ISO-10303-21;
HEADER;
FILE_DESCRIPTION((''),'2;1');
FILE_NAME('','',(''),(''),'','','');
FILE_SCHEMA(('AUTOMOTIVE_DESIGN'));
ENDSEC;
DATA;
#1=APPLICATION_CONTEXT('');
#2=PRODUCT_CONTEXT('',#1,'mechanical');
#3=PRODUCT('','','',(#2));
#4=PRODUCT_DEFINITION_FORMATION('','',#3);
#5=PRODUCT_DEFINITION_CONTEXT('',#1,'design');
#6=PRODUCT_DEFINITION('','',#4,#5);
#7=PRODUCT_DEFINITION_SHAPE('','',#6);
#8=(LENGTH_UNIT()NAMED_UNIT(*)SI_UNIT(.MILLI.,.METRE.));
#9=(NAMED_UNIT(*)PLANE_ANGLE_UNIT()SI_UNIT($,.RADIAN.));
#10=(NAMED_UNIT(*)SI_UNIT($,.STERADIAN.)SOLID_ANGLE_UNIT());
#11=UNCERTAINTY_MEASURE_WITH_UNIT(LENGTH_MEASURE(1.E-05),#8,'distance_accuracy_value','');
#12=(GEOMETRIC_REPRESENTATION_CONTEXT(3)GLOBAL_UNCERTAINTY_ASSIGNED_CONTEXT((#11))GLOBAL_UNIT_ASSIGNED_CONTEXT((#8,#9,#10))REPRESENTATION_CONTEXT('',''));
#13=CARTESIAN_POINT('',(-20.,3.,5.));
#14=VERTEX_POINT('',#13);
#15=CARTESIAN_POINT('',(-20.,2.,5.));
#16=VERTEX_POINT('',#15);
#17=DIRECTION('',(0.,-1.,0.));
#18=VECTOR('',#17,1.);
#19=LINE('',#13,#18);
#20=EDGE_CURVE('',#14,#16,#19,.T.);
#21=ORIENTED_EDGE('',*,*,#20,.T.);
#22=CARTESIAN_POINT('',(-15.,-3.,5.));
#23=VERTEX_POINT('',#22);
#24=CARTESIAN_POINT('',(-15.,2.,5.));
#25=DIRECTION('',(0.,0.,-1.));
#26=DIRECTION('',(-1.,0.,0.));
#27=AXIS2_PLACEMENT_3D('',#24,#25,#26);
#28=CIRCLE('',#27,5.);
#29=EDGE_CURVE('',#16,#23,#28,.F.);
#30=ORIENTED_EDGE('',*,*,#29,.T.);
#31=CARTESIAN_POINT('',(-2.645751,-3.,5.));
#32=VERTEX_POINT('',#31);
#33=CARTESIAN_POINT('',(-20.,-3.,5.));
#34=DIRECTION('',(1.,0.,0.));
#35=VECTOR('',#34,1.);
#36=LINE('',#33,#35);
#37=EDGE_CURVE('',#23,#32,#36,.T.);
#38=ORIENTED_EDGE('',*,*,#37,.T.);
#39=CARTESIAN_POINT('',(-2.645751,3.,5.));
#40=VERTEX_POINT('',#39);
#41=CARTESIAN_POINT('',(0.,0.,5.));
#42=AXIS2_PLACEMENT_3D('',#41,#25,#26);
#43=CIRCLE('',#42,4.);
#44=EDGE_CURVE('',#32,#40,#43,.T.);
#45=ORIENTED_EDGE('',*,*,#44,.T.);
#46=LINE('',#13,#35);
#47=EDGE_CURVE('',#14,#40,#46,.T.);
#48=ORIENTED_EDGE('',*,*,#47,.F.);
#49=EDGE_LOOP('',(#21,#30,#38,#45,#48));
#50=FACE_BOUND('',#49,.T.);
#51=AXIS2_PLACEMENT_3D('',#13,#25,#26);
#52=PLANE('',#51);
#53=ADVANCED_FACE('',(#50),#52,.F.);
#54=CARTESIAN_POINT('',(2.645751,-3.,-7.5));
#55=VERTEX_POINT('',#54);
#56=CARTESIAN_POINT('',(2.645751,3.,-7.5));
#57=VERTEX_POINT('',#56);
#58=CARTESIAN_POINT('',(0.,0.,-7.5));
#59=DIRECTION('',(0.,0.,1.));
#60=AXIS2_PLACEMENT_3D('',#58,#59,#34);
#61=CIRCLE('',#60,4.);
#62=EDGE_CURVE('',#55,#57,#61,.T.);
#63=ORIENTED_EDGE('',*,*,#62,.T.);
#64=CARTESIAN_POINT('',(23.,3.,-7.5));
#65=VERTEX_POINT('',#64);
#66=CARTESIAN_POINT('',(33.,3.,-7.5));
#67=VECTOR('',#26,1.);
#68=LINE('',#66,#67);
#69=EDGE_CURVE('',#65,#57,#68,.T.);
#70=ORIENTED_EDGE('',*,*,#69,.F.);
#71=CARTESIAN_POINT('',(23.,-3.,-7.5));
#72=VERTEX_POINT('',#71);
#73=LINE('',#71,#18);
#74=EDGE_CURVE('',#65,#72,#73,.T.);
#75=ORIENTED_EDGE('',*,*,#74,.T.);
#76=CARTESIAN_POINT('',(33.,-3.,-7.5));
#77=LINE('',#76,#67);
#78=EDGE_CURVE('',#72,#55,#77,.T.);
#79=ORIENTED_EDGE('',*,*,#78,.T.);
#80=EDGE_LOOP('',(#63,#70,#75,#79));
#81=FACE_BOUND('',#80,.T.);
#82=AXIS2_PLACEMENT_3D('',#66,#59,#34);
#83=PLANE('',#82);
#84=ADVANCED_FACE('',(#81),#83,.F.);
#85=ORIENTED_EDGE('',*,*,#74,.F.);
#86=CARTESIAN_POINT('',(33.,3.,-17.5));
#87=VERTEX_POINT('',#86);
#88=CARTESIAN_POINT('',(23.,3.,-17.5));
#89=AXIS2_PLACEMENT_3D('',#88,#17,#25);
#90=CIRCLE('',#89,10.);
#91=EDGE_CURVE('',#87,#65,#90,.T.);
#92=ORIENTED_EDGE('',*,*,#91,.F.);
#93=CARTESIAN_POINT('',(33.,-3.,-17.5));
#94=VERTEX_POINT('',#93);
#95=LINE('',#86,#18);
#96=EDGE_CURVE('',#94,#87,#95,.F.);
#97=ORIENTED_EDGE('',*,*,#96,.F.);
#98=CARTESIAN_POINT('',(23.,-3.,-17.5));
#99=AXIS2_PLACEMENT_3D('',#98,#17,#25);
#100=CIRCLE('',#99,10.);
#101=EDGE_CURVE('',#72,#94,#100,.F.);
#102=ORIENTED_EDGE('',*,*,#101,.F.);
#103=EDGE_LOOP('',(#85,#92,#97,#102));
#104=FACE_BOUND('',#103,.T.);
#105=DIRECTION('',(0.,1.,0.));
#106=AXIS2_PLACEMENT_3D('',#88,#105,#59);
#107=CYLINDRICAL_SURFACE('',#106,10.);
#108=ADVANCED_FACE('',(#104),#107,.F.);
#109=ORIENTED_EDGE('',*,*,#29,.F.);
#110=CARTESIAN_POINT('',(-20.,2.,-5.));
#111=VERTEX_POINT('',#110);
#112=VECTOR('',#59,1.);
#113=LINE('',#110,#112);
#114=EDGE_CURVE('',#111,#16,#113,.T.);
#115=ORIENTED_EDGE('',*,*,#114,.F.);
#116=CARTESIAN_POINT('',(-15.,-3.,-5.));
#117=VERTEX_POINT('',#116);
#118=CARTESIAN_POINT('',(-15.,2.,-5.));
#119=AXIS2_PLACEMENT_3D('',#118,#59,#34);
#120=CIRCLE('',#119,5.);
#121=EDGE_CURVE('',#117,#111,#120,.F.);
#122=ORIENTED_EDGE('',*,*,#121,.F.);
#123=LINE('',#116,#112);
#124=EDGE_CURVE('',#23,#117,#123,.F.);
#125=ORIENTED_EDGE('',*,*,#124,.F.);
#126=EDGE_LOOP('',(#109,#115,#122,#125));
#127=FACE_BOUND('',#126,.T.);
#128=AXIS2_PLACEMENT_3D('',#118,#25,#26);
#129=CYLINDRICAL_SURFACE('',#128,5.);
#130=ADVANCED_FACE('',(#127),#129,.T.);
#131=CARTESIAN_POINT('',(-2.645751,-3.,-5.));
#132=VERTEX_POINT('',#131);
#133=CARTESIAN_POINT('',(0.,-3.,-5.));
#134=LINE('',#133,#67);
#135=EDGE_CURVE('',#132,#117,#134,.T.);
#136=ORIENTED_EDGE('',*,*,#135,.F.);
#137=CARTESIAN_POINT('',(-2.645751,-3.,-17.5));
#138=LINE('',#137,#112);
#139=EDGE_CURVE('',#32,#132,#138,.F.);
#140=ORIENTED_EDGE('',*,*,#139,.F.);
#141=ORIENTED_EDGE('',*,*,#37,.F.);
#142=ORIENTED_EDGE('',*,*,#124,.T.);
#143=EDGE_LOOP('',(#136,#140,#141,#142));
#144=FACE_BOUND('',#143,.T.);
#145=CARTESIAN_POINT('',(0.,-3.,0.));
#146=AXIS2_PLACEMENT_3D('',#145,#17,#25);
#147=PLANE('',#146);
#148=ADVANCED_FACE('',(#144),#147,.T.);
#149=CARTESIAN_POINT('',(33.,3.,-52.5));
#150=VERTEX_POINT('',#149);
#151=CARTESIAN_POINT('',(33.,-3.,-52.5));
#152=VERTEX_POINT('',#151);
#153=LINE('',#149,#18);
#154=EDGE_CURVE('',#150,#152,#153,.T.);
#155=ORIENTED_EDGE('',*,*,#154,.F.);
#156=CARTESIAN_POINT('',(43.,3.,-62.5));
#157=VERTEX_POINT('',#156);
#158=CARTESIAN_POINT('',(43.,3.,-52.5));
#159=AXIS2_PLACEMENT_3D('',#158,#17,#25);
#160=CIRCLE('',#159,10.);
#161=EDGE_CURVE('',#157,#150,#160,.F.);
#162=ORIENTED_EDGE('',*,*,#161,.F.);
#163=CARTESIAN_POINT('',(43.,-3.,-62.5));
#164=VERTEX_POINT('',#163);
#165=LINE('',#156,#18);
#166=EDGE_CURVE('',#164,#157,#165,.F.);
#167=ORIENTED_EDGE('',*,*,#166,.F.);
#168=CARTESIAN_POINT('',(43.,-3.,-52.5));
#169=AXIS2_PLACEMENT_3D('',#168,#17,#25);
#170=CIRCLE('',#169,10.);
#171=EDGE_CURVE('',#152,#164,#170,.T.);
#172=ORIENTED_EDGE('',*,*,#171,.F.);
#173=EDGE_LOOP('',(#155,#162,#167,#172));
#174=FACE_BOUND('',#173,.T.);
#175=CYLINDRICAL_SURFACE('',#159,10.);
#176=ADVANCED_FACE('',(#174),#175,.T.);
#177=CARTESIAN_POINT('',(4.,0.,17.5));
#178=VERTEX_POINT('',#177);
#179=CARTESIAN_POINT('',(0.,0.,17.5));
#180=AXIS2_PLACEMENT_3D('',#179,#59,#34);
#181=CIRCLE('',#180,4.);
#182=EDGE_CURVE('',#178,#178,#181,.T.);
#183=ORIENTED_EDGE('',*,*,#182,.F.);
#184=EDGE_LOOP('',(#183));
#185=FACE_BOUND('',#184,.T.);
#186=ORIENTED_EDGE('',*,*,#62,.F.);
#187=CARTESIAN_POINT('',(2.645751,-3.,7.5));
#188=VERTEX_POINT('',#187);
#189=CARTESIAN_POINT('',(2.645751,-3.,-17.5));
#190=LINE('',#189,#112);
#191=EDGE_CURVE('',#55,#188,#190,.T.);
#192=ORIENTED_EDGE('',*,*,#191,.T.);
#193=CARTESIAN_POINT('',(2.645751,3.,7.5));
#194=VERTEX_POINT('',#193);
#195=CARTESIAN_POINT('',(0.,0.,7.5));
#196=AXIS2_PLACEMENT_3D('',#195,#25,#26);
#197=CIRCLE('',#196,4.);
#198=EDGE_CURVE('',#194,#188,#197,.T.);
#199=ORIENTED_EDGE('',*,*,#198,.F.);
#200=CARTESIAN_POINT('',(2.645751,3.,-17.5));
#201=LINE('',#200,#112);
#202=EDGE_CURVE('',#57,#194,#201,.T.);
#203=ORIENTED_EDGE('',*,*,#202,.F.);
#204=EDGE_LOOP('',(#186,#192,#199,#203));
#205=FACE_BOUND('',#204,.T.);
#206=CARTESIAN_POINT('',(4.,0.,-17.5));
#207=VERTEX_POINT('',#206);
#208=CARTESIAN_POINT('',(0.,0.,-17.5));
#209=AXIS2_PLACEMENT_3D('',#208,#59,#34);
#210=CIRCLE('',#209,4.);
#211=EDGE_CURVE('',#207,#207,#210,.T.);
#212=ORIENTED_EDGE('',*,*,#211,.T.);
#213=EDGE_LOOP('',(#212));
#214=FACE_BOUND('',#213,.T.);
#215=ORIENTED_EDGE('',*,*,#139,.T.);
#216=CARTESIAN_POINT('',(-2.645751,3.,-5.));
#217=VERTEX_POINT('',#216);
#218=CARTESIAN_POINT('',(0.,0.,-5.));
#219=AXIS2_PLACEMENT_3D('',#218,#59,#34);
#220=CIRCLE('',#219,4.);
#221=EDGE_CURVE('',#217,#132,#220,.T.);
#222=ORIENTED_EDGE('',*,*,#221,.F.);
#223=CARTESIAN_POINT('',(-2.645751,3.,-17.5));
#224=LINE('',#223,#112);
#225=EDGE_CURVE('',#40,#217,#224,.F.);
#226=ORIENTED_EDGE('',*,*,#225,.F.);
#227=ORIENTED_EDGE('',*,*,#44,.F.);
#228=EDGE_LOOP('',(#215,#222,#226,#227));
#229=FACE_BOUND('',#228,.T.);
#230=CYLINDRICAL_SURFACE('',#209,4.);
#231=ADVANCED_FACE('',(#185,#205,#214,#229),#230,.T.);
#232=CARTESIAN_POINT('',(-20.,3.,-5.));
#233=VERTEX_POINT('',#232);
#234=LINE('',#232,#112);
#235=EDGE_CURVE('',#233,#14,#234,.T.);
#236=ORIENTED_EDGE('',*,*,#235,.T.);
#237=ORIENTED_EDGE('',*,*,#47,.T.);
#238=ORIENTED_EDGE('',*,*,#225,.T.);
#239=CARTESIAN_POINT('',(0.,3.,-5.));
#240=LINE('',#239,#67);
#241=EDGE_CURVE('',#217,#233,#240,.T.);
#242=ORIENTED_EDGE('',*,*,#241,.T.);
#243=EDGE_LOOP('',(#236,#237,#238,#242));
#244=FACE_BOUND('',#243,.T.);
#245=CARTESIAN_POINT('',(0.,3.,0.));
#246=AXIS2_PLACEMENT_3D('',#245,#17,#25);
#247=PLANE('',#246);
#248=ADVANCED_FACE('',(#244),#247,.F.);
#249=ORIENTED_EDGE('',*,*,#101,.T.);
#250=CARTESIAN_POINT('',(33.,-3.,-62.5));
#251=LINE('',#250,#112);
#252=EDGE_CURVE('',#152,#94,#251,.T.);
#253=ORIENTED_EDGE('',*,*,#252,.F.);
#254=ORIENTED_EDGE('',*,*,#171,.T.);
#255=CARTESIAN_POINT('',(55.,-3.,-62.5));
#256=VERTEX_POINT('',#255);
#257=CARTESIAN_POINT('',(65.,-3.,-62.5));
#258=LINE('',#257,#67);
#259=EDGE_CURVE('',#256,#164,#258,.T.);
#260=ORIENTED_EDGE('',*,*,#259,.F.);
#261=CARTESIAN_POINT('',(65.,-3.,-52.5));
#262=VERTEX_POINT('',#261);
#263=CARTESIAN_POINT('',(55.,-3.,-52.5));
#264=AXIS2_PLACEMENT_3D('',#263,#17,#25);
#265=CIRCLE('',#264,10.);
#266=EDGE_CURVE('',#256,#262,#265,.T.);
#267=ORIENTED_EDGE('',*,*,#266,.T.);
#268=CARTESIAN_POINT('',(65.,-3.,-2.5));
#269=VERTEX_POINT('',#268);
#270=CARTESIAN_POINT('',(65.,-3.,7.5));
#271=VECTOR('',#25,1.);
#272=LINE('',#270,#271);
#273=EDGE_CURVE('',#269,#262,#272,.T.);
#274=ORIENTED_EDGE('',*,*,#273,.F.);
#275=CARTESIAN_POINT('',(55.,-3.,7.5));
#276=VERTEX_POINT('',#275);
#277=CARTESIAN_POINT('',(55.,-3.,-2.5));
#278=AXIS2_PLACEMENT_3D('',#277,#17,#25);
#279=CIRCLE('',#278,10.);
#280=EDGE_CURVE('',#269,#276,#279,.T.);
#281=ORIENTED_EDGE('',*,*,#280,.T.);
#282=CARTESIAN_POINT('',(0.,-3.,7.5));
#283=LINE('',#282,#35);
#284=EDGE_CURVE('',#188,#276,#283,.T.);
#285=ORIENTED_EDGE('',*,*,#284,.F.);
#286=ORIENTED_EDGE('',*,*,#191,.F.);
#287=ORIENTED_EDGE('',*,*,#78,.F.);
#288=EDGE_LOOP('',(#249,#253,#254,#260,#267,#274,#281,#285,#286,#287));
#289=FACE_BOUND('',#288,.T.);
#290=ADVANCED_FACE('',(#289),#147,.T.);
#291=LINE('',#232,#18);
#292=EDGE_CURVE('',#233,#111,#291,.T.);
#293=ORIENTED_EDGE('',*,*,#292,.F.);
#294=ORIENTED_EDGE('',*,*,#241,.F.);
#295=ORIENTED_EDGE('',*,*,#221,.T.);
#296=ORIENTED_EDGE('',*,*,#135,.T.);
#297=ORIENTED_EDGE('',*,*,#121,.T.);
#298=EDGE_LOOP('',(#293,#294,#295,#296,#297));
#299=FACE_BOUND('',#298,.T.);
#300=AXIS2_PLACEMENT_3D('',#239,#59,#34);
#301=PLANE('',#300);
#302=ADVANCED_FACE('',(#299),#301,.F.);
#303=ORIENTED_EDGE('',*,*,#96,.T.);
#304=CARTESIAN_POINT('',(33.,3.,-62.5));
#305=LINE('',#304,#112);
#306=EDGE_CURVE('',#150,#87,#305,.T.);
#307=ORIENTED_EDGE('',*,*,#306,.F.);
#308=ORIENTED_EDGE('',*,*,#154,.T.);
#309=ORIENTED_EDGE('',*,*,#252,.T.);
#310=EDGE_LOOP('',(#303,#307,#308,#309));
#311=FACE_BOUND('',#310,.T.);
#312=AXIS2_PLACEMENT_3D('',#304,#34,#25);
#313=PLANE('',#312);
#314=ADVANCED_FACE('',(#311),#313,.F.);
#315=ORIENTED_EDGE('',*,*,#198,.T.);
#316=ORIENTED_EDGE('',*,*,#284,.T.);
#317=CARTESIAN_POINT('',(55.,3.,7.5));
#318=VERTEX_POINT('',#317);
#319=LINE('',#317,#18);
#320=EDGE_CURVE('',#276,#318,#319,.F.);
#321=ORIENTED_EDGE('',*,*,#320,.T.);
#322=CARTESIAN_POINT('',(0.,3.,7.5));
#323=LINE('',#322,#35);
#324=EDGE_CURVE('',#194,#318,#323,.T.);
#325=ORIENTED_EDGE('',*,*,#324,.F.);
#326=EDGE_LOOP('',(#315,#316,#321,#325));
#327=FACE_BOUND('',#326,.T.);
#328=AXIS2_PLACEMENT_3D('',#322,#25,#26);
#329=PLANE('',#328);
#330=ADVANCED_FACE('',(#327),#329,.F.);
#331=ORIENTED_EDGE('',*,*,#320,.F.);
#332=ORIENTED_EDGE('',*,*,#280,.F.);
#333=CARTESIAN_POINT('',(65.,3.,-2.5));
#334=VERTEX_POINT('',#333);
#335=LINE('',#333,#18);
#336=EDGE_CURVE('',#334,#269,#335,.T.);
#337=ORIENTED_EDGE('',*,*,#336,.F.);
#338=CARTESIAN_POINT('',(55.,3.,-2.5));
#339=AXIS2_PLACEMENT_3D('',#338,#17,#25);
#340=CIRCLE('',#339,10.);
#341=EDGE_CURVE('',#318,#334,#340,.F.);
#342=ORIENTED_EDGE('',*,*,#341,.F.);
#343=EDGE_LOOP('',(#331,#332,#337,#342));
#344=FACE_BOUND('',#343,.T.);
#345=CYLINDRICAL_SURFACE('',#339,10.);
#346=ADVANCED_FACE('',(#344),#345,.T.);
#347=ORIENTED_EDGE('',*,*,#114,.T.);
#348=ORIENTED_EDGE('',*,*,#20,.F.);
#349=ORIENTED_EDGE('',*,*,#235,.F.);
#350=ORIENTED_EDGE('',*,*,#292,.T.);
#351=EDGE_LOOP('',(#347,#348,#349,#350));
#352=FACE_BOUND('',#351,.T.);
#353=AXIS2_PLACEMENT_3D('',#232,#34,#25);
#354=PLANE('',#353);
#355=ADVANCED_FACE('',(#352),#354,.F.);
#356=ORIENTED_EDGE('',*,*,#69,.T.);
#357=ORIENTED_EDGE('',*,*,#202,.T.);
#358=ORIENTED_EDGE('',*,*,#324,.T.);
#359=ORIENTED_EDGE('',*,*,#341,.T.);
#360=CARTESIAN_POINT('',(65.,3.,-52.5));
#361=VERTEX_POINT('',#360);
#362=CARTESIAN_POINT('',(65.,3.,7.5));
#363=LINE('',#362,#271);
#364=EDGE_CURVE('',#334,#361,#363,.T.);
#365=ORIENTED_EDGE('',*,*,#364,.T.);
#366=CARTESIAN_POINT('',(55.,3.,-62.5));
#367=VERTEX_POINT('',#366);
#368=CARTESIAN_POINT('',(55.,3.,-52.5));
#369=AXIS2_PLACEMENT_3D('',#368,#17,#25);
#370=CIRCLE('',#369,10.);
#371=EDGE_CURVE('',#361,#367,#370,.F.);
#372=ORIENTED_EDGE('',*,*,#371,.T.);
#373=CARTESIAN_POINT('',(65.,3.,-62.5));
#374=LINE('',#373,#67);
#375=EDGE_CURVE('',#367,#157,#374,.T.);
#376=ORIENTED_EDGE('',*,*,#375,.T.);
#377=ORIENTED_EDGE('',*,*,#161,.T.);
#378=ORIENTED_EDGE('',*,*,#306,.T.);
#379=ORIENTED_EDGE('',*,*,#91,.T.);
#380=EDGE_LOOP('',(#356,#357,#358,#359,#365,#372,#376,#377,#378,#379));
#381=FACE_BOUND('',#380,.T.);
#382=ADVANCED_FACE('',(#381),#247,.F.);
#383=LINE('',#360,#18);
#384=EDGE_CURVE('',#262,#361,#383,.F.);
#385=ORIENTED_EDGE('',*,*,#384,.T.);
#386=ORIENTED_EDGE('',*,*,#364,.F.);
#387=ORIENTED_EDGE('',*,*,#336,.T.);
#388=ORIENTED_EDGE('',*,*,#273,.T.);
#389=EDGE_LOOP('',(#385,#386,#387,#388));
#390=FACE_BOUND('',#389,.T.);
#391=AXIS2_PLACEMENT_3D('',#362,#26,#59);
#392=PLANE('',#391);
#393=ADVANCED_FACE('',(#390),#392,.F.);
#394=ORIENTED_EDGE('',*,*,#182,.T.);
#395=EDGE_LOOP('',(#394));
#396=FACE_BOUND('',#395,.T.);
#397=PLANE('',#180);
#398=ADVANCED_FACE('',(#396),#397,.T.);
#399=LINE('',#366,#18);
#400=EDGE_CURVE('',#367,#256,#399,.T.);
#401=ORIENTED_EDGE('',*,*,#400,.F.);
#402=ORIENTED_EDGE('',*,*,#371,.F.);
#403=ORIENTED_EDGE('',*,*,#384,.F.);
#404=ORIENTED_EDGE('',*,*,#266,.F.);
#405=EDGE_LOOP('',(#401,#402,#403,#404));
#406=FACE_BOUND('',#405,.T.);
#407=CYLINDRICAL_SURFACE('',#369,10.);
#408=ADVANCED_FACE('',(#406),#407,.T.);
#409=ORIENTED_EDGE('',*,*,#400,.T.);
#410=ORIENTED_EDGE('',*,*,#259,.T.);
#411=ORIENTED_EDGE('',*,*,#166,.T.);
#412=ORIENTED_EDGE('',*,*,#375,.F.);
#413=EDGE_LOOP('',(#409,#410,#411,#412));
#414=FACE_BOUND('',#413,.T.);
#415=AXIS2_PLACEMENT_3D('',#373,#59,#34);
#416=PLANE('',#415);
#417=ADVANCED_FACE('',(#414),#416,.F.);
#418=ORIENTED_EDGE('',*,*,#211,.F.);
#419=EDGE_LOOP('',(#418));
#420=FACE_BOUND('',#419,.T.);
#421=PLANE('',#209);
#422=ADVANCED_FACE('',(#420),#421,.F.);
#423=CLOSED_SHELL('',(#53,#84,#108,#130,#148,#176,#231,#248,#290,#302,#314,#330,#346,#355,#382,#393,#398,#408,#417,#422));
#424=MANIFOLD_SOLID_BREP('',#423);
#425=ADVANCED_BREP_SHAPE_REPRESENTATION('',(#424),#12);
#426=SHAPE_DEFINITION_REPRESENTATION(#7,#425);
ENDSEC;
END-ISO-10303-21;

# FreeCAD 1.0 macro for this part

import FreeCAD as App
import Part
import Sketcher
from FreeCAD import Vector


def edges_at(feature, points):
    """Names of the edges that pass closest to the given points."""
    edges = feature.Shape.Edges
    near = lambda p: min(range(len(edges)), key=lambda i: edges[i].distToShape(Part.Vertex(*p))[0])
    return sorted({f"Edge{near(p) + 1}" for p in points})

doc = App.newDocument("Part")
params = doc.addObject("Spreadsheet::Sheet", "Params")
for row, (alias, value) in enumerate([
    ("sketch1_width", "65 mm"),
    ("sketch1_width2", "32 mm"),
    ("sketch1_width3", "20 mm"),
    ("sketch1_height", "70 mm"),
    ("sketch1_height2", "55 mm"),
    ("pad1_length", "6 mm"),
    ("sketch2_diameter", "8 mm"),
    ("pad2_length", "10 mm"),
    ("pad2_length2", "25 mm"),
    ("fillet_radius", "10 mm"),
    ("fillet2_radius", "5 mm"),
], start=1):
    params.set(f"A{row}", alias)
    params.set(f"B{row}", "=" + value)
    params.setAlias(f"B{row}", alias)

body = doc.addObject("PartDesign::Body", "Body")

sketch1 = body.newObject("Sketcher::SketchObject", "Sketch")
sketch1.AttachmentSupport = (doc.getObject("XZ_Plane"), [""])
sketch1.MapMode = "FlatFace"
sketch1.addGeometry([
    Part.LineSegment(Vector(0, 7.5, 0), Vector(65, 7.5, 0)),
    Part.LineSegment(Vector(65, 7.5, 0), Vector(65, -62.5, 0)),
    Part.LineSegment(Vector(65, -62.5, 0), Vector(33, -62.5, 0)),
    Part.LineSegment(Vector(33, -62.5, 0), Vector(33, -7.5, 0)),
    Part.LineSegment(Vector(33, -7.5, 0), Vector(0, -7.5, 0)),
    Part.LineSegment(Vector(0, -7.5, 0), Vector(0, -5, 0)),
    Part.LineSegment(Vector(0, -5, 0), Vector(-20, -5, 0)),
    Part.LineSegment(Vector(-20, -5, 0), Vector(-20, 5, 0)),
    Part.LineSegment(Vector(-20, 5, 0), Vector(0, 5, 0)),
    Part.LineSegment(Vector(0, 5, 0), Vector(0, 7.5, 0)),
], False)
sketch1.addConstraint([
    Sketcher.Constraint("Coincident", 0, 2, 1, 1),
    Sketcher.Constraint("Coincident", 1, 2, 2, 1),
    Sketcher.Constraint("Coincident", 2, 2, 3, 1),
    Sketcher.Constraint("Coincident", 3, 2, 4, 1),
    Sketcher.Constraint("Coincident", 4, 2, 5, 1),
    Sketcher.Constraint("Coincident", 5, 2, 6, 1),
    Sketcher.Constraint("Coincident", 6, 2, 7, 1),
    Sketcher.Constraint("Coincident", 7, 2, 8, 1),
    Sketcher.Constraint("Coincident", 8, 2, 9, 1),
    Sketcher.Constraint("Coincident", 9, 2, 0, 1),
    Sketcher.Constraint("Horizontal", 0),
    Sketcher.Constraint("Vertical", 1),
    Sketcher.Constraint("Horizontal", 2),
    Sketcher.Constraint("Vertical", 3),
    Sketcher.Constraint("Horizontal", 4),
    Sketcher.Constraint("Vertical", 5),
    Sketcher.Constraint("Horizontal", 6),
    Sketcher.Constraint("Vertical", 7),
    Sketcher.Constraint("Horizontal", 8),
    Sketcher.Constraint("Vertical", 9),
    Sketcher.Constraint("Symmetric", 5, 2, 8, 2, -1, 1),
    Sketcher.Constraint("Symmetric", 4, 2, 9, 2, -1),
    Sketcher.Constraint("DistanceX", 0, 1, 0, 2, 65.0),
    Sketcher.Constraint("DistanceX", 2, 2, 2, 1, 32.0),
    Sketcher.Constraint("DistanceX", 6, 2, 6, 1, 20.0),
    Sketcher.Constraint("DistanceY", 1, 2, 1, 1, 70.0),
    Sketcher.Constraint("DistanceY", 3, 1, 3, 2, 55.0),
    Sketcher.Constraint("DistanceY", 7, 1, 7, 2, 10.0),
])
sketch1.setExpression("Constraints[22]", "Params.sketch1_width")
sketch1.setExpression("Constraints[23]", "Params.sketch1_width2")
sketch1.setExpression("Constraints[24]", "Params.sketch1_width3")
sketch1.setExpression("Constraints[25]", "Params.sketch1_height")
sketch1.setExpression("Constraints[26]", "Params.sketch1_height2")
pad1 = body.newObject("PartDesign::Pad", "Pad")
pad1.Profile = sketch1
pad1.setExpression("Length", "Params.pad1_length")
pad1.Midplane = True

sketch2 = body.newObject("Sketcher::SketchObject", "Sketch001")
sketch2.AttachmentSupport = (doc.getObject("XY_Plane"), [""])
sketch2.MapMode = "FlatFace"
sketch2.AttachmentOffset = App.Placement(Vector(0, 0, 7.5), App.Rotation())
sketch2.addGeometry(Part.Circle(Vector(0, 0, 0), Vector(0, 0, 1), 4), False)
sketch2.addConstraint([
    Sketcher.Constraint("Coincident", 0, 3, -1, 1),
    Sketcher.Constraint("Diameter", 0, 8.0),
])
sketch2.setExpression("Constraints[1]", "Params.sketch2_diameter")
pad2 = body.newObject("PartDesign::Pad", "Pad001")
pad2.Profile = sketch2
pad2.Type = "TwoLengths"
pad2.setExpression("Length", "Params.pad2_length")
pad2.setExpression("Length2", "Params.pad2_length2")
doc.recompute()

fillet = body.newObject("PartDesign::Fillet", "Fillet")
fillet.Base = (pad2, edges_at(pad2, [
    (33, 0, -7.5),
    (33, 0, -62.5),
    (65, 0, -62.5),
    (65, 0, 7.5),
]))
fillet.setExpression("Radius", "Params.fillet_radius")
doc.recompute()

fillet2 = body.newObject("PartDesign::Fillet", "Fillet001")
fillet2.Base = (fillet, edges_at(fillet, [(-20, -3, 0)]))
fillet2.setExpression("Radius", "Params.fillet2_radius")

doc.recompute()
